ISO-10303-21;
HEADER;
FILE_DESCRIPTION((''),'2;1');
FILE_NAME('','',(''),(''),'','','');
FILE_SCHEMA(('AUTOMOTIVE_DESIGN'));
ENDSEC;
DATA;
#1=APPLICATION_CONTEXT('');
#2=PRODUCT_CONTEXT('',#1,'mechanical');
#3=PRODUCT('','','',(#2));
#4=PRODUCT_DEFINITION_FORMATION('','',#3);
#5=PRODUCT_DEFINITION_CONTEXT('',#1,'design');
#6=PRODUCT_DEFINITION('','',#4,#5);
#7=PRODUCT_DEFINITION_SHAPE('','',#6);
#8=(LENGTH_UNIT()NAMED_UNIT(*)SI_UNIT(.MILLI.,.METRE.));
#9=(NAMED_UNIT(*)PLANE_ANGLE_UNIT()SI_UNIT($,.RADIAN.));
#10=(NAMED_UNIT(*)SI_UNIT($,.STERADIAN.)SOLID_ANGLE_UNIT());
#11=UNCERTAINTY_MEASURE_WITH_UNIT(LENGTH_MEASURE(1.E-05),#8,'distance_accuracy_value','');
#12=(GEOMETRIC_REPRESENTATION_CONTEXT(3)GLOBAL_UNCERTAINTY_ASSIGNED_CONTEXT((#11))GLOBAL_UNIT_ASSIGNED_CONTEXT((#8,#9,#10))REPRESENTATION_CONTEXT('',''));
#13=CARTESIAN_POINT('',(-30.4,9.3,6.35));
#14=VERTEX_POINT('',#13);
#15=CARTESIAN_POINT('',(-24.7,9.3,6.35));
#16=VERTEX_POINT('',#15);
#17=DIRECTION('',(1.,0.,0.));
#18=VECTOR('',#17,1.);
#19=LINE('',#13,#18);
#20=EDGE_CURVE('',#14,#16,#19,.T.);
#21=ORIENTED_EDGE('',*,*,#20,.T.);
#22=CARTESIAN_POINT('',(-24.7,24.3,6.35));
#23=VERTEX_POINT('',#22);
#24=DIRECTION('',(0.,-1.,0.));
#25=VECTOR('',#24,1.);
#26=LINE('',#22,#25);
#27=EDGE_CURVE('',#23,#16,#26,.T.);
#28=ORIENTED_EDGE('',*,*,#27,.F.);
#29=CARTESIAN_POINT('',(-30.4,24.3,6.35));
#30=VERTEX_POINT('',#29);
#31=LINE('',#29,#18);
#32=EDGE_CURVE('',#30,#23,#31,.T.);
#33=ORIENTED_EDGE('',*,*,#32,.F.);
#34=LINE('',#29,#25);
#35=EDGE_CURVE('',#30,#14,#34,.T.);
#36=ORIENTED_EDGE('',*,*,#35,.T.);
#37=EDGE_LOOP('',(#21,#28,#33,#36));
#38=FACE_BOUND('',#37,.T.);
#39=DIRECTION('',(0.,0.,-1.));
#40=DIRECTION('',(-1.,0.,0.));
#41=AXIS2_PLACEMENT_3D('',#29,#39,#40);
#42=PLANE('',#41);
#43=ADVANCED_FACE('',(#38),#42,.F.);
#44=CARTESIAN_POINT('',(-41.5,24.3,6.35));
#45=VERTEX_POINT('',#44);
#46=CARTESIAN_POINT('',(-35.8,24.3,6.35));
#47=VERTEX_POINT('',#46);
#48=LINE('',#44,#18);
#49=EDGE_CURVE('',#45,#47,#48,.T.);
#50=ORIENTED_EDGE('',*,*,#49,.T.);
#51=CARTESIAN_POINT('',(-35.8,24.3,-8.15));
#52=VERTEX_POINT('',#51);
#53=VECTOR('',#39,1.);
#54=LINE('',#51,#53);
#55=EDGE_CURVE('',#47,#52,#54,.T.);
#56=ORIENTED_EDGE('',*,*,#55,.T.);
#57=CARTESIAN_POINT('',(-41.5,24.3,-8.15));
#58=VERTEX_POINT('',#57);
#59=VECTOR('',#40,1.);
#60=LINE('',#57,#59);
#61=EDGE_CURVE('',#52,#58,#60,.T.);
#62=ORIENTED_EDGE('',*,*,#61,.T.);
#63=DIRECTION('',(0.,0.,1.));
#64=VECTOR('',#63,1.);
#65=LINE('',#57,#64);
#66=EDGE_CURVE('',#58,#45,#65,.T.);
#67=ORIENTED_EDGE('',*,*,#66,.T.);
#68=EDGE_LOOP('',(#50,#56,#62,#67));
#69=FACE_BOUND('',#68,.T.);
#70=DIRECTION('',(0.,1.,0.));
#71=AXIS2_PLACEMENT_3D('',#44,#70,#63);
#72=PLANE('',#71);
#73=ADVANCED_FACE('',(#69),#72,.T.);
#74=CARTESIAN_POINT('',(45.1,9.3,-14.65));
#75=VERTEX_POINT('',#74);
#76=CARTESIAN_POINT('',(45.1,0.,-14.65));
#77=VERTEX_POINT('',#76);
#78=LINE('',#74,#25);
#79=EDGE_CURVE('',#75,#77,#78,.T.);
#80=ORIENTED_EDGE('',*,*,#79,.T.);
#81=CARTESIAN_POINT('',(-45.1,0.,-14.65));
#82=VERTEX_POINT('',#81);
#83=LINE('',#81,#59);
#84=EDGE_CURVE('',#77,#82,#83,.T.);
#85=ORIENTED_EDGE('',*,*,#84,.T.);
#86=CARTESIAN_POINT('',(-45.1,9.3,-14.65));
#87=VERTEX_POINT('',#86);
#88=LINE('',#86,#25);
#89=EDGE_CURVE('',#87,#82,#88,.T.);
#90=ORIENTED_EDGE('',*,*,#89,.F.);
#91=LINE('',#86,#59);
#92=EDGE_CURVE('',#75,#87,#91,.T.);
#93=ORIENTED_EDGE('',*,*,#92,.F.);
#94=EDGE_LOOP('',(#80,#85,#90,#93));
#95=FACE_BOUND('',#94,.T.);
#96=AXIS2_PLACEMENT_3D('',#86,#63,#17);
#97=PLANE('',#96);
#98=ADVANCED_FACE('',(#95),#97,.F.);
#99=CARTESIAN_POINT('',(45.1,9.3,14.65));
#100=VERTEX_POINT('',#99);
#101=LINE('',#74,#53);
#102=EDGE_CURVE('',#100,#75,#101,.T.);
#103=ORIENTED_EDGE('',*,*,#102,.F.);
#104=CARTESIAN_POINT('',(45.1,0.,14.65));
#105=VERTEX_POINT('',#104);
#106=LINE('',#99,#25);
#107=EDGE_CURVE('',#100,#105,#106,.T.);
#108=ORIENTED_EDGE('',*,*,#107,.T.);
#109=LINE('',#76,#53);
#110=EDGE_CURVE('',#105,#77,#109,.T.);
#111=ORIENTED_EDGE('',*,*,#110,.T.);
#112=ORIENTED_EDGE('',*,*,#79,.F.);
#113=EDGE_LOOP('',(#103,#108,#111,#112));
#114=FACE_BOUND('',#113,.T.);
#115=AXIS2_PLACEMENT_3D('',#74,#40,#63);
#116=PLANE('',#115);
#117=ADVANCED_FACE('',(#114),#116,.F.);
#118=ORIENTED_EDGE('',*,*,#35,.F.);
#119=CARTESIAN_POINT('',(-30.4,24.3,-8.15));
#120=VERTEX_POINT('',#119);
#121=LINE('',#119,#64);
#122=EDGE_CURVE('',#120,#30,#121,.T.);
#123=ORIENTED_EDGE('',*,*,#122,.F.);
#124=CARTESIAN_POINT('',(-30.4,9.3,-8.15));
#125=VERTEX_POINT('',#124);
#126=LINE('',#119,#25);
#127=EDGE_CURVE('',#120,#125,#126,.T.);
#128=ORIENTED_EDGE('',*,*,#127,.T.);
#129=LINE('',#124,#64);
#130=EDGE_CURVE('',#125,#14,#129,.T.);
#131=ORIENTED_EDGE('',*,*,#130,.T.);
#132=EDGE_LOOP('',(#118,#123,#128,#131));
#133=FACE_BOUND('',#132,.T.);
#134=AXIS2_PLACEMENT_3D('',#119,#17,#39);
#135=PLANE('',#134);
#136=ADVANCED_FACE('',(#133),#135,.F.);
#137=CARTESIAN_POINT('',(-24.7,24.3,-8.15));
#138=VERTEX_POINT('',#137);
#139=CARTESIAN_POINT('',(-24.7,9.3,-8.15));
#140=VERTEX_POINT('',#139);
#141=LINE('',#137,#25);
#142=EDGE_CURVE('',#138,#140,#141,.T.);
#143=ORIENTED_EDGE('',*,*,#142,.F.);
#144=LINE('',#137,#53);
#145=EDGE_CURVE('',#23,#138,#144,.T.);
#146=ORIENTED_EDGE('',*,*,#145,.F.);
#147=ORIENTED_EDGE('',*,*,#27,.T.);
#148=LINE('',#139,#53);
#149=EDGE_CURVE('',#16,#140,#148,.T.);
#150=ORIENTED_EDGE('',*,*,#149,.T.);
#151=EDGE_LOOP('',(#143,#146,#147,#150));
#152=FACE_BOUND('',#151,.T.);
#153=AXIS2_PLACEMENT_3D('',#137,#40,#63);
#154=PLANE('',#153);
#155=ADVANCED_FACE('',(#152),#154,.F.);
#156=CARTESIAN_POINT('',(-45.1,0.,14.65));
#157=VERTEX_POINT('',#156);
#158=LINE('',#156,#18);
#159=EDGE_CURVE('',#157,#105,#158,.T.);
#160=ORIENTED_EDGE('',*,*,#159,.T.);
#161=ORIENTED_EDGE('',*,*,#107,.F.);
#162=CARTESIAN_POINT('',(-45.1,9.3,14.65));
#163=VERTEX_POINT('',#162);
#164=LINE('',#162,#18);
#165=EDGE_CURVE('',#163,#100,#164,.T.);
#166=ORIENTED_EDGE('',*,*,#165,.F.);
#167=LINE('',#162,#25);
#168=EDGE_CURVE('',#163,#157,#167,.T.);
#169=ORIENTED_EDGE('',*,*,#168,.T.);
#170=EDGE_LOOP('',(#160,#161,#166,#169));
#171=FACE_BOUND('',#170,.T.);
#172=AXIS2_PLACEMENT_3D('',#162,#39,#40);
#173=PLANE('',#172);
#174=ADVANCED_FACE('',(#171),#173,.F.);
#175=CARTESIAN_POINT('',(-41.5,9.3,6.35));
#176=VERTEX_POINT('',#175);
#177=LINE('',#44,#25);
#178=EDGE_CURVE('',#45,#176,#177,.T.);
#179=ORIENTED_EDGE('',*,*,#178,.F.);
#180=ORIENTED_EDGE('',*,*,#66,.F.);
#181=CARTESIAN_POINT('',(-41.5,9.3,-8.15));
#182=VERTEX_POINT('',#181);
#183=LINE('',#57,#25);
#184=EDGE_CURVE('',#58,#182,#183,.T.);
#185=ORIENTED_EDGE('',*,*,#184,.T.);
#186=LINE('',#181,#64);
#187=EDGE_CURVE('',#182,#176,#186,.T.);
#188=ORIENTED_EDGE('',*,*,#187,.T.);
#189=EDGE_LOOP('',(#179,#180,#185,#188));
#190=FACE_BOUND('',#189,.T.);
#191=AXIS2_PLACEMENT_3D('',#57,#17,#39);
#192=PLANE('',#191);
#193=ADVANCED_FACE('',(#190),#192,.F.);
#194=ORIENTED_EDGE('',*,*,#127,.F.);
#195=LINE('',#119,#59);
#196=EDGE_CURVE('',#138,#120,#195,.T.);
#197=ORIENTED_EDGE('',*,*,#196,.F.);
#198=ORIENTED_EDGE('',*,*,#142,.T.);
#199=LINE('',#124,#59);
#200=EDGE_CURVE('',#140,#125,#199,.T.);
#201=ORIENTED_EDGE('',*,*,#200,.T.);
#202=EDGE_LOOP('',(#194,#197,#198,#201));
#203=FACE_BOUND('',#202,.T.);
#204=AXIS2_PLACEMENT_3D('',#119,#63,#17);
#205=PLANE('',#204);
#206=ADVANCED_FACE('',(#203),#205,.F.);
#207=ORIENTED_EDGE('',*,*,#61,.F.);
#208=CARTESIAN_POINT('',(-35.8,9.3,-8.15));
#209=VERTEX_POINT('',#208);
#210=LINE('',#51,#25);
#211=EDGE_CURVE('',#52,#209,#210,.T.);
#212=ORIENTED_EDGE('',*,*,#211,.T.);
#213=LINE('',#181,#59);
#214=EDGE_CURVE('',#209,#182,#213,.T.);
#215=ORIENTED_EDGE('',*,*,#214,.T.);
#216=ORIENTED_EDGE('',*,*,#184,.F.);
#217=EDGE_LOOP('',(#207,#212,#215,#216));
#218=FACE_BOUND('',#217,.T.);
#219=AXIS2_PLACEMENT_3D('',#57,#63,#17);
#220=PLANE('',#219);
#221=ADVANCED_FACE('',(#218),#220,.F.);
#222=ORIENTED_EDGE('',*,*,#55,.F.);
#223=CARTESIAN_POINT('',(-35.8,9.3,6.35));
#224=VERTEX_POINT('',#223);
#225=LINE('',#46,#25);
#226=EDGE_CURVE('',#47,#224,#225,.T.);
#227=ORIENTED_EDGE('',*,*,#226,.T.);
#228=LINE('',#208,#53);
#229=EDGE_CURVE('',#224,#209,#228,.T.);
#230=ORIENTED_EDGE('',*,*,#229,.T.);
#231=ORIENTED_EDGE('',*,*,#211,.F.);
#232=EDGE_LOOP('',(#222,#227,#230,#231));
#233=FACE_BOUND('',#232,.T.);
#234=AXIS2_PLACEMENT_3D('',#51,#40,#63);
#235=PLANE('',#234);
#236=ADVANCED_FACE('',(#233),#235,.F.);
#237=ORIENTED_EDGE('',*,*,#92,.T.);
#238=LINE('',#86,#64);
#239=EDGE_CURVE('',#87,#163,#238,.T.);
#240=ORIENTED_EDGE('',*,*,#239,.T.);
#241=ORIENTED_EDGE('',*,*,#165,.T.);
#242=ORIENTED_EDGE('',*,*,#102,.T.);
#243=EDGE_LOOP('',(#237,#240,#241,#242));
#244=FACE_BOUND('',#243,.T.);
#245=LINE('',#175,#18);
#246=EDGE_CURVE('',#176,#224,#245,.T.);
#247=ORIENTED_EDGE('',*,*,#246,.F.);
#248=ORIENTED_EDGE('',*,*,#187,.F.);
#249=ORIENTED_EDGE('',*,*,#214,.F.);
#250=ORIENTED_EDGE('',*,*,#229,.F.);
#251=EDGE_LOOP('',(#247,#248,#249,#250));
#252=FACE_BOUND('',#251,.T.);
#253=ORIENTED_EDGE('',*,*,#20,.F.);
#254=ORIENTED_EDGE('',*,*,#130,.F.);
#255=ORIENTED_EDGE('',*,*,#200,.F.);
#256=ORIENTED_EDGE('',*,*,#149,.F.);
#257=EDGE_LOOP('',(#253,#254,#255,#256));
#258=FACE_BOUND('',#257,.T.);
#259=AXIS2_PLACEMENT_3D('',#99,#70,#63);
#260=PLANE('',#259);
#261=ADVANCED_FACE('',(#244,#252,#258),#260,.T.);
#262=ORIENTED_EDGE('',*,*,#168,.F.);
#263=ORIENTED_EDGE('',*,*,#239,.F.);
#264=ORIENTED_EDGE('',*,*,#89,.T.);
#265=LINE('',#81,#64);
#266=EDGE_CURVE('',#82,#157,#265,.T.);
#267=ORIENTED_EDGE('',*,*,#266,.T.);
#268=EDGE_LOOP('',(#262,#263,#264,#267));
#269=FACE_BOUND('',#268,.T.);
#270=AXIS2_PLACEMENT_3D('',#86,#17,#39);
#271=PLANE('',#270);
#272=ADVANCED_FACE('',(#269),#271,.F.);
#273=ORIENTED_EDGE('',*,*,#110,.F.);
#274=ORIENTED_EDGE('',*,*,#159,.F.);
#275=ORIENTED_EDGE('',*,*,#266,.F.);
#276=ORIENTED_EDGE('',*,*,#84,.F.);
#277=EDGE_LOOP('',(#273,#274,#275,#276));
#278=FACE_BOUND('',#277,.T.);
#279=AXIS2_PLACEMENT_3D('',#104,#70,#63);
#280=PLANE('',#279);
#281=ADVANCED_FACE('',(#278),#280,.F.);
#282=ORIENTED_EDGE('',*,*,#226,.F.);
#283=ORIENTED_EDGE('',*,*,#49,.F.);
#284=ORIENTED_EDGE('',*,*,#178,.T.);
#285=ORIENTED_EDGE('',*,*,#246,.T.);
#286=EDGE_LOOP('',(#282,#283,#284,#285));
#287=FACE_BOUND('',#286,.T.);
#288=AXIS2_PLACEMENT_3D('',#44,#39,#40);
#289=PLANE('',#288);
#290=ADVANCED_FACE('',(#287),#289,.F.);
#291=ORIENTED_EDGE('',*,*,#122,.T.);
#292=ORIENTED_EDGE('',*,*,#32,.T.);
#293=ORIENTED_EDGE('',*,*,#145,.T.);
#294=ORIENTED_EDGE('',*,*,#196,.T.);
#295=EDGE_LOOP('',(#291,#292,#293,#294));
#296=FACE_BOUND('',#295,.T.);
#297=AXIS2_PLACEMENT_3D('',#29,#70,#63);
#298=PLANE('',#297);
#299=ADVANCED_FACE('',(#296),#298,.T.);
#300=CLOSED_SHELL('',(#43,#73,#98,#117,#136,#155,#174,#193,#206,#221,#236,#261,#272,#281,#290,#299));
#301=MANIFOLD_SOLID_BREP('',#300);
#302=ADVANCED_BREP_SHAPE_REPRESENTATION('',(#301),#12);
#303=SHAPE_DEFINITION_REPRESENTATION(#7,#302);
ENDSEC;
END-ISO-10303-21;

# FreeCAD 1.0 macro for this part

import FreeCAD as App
import Part
import Sketcher
from FreeCAD import Vector
Q = App.Units.Quantity


def add_polygon(sketch, points):
    """Adds a closed chain of lines whose ends are joined by coincident constraints."""
    first, n = sketch.GeometryCount, len(points)
    for a, b in zip(points, points[1:] + points[:1]):
        sketch.addGeometry(Part.LineSegment(App.Vector(*a, 0), App.Vector(*b, 0)), False)
    for i in range(n):
        sketch.addConstraint(Sketcher.Constraint("Coincident", first + i, 2, first + (i + 1) % n, 1))

doc = App.newDocument("Part")
body = doc.addObject("PartDesign::Body", "Body")

# Sketch on XZ plane
sketch1 = doc.addObject("Sketcher::SketchObject", "Sketch")
body.addObject(sketch1)
sketch1.AttachmentSupport = (doc.XZ_Plane, [""])
sketch1.MapMode = "FlatFace"
add_polygon(sketch1, [(-45, -15), (-45, 15), (45, 15), (45, -15)])  # lines 0-3
sketch1.addConstraint([
    Sketcher.Constraint("Vertical", 0),
    Sketcher.Constraint("Horizontal", 1),
    Sketcher.Constraint("Vertical", 2),
    Sketcher.Constraint("Horizontal", 3),
    Sketcher.Constraint("Symmetric", 0, 2, 2, 2, -1, 1),
    Sketcher.Constraint("DistanceX", 1, 1, 1, 2, Q("90.2 mm")),
    Sketcher.Constraint("DistanceY", 0, 1, 0, 2, Q("29.3 mm")),
])
pad1 = doc.addObject("PartDesign::Pad", "Pad")
body.addObject(pad1)
pad1.Profile = sketch1
pad1.Length = 9.3
pad1.Reversed = True

# Sketch on XZ plane
sketch2 = doc.addObject("Sketcher::SketchObject", "Sketch001")
body.addObject(sketch2)
sketch2.AttachmentSupport = (doc.XZ_Plane, [""])
sketch2.MapMode = "FlatFace"
sketch2.AttachmentOffset = App.Placement(Vector(0, 0, -9.3), App.Rotation())
add_polygon(sketch2, [(-42, -8), (-42, 6), (-36, 6), (-36, -8)])  # lines 0-3
add_polygon(sketch2, [(-30, -8), (-30, 6), (-25, 6), (-25, -8)])  # lines 4-7
sketch2.addConstraint([
    Sketcher.Constraint("Vertical", 0),
    Sketcher.Constraint("Horizontal", 1),
    Sketcher.Constraint("Vertical", 2),
    Sketcher.Constraint("Horizontal", 3),
    Sketcher.Constraint("Vertical", 4),
    Sketcher.Constraint("Horizontal", 5),
    Sketcher.Constraint("Vertical", 6),
    Sketcher.Constraint("Horizontal", 7),
    Sketcher.Constraint("Horizontal", 1, 2, 4, 2),
    Sketcher.Constraint("Horizontal", 3, 2, 6, 2),
    Sketcher.Constraint("Equal", 3, 5),
    Sketcher.Constraint("DistanceX", 1, 1, 1, 2, Q("5.7 mm")),
    Sketcher.Constraint("DistanceY", 0, 1, 0, 2, Q("14.5 mm")),
    Sketcher.Constraint("DistanceX", 0, 2, -1, 1, Q("41.5 mm")),
    Sketcher.Constraint("DistanceX", 4, 2, -1, 1, Q("30.4 mm")),
    Sketcher.Constraint("DistanceY", -1, 1, 0, 2, Q("6.35 mm")),
])
pad2 = doc.addObject("PartDesign::Pad", "Pad001")
body.addObject(pad2)
pad2.Profile = sketch2
pad2.Length = 15
pad2.Reversed = True

doc.recompute()
